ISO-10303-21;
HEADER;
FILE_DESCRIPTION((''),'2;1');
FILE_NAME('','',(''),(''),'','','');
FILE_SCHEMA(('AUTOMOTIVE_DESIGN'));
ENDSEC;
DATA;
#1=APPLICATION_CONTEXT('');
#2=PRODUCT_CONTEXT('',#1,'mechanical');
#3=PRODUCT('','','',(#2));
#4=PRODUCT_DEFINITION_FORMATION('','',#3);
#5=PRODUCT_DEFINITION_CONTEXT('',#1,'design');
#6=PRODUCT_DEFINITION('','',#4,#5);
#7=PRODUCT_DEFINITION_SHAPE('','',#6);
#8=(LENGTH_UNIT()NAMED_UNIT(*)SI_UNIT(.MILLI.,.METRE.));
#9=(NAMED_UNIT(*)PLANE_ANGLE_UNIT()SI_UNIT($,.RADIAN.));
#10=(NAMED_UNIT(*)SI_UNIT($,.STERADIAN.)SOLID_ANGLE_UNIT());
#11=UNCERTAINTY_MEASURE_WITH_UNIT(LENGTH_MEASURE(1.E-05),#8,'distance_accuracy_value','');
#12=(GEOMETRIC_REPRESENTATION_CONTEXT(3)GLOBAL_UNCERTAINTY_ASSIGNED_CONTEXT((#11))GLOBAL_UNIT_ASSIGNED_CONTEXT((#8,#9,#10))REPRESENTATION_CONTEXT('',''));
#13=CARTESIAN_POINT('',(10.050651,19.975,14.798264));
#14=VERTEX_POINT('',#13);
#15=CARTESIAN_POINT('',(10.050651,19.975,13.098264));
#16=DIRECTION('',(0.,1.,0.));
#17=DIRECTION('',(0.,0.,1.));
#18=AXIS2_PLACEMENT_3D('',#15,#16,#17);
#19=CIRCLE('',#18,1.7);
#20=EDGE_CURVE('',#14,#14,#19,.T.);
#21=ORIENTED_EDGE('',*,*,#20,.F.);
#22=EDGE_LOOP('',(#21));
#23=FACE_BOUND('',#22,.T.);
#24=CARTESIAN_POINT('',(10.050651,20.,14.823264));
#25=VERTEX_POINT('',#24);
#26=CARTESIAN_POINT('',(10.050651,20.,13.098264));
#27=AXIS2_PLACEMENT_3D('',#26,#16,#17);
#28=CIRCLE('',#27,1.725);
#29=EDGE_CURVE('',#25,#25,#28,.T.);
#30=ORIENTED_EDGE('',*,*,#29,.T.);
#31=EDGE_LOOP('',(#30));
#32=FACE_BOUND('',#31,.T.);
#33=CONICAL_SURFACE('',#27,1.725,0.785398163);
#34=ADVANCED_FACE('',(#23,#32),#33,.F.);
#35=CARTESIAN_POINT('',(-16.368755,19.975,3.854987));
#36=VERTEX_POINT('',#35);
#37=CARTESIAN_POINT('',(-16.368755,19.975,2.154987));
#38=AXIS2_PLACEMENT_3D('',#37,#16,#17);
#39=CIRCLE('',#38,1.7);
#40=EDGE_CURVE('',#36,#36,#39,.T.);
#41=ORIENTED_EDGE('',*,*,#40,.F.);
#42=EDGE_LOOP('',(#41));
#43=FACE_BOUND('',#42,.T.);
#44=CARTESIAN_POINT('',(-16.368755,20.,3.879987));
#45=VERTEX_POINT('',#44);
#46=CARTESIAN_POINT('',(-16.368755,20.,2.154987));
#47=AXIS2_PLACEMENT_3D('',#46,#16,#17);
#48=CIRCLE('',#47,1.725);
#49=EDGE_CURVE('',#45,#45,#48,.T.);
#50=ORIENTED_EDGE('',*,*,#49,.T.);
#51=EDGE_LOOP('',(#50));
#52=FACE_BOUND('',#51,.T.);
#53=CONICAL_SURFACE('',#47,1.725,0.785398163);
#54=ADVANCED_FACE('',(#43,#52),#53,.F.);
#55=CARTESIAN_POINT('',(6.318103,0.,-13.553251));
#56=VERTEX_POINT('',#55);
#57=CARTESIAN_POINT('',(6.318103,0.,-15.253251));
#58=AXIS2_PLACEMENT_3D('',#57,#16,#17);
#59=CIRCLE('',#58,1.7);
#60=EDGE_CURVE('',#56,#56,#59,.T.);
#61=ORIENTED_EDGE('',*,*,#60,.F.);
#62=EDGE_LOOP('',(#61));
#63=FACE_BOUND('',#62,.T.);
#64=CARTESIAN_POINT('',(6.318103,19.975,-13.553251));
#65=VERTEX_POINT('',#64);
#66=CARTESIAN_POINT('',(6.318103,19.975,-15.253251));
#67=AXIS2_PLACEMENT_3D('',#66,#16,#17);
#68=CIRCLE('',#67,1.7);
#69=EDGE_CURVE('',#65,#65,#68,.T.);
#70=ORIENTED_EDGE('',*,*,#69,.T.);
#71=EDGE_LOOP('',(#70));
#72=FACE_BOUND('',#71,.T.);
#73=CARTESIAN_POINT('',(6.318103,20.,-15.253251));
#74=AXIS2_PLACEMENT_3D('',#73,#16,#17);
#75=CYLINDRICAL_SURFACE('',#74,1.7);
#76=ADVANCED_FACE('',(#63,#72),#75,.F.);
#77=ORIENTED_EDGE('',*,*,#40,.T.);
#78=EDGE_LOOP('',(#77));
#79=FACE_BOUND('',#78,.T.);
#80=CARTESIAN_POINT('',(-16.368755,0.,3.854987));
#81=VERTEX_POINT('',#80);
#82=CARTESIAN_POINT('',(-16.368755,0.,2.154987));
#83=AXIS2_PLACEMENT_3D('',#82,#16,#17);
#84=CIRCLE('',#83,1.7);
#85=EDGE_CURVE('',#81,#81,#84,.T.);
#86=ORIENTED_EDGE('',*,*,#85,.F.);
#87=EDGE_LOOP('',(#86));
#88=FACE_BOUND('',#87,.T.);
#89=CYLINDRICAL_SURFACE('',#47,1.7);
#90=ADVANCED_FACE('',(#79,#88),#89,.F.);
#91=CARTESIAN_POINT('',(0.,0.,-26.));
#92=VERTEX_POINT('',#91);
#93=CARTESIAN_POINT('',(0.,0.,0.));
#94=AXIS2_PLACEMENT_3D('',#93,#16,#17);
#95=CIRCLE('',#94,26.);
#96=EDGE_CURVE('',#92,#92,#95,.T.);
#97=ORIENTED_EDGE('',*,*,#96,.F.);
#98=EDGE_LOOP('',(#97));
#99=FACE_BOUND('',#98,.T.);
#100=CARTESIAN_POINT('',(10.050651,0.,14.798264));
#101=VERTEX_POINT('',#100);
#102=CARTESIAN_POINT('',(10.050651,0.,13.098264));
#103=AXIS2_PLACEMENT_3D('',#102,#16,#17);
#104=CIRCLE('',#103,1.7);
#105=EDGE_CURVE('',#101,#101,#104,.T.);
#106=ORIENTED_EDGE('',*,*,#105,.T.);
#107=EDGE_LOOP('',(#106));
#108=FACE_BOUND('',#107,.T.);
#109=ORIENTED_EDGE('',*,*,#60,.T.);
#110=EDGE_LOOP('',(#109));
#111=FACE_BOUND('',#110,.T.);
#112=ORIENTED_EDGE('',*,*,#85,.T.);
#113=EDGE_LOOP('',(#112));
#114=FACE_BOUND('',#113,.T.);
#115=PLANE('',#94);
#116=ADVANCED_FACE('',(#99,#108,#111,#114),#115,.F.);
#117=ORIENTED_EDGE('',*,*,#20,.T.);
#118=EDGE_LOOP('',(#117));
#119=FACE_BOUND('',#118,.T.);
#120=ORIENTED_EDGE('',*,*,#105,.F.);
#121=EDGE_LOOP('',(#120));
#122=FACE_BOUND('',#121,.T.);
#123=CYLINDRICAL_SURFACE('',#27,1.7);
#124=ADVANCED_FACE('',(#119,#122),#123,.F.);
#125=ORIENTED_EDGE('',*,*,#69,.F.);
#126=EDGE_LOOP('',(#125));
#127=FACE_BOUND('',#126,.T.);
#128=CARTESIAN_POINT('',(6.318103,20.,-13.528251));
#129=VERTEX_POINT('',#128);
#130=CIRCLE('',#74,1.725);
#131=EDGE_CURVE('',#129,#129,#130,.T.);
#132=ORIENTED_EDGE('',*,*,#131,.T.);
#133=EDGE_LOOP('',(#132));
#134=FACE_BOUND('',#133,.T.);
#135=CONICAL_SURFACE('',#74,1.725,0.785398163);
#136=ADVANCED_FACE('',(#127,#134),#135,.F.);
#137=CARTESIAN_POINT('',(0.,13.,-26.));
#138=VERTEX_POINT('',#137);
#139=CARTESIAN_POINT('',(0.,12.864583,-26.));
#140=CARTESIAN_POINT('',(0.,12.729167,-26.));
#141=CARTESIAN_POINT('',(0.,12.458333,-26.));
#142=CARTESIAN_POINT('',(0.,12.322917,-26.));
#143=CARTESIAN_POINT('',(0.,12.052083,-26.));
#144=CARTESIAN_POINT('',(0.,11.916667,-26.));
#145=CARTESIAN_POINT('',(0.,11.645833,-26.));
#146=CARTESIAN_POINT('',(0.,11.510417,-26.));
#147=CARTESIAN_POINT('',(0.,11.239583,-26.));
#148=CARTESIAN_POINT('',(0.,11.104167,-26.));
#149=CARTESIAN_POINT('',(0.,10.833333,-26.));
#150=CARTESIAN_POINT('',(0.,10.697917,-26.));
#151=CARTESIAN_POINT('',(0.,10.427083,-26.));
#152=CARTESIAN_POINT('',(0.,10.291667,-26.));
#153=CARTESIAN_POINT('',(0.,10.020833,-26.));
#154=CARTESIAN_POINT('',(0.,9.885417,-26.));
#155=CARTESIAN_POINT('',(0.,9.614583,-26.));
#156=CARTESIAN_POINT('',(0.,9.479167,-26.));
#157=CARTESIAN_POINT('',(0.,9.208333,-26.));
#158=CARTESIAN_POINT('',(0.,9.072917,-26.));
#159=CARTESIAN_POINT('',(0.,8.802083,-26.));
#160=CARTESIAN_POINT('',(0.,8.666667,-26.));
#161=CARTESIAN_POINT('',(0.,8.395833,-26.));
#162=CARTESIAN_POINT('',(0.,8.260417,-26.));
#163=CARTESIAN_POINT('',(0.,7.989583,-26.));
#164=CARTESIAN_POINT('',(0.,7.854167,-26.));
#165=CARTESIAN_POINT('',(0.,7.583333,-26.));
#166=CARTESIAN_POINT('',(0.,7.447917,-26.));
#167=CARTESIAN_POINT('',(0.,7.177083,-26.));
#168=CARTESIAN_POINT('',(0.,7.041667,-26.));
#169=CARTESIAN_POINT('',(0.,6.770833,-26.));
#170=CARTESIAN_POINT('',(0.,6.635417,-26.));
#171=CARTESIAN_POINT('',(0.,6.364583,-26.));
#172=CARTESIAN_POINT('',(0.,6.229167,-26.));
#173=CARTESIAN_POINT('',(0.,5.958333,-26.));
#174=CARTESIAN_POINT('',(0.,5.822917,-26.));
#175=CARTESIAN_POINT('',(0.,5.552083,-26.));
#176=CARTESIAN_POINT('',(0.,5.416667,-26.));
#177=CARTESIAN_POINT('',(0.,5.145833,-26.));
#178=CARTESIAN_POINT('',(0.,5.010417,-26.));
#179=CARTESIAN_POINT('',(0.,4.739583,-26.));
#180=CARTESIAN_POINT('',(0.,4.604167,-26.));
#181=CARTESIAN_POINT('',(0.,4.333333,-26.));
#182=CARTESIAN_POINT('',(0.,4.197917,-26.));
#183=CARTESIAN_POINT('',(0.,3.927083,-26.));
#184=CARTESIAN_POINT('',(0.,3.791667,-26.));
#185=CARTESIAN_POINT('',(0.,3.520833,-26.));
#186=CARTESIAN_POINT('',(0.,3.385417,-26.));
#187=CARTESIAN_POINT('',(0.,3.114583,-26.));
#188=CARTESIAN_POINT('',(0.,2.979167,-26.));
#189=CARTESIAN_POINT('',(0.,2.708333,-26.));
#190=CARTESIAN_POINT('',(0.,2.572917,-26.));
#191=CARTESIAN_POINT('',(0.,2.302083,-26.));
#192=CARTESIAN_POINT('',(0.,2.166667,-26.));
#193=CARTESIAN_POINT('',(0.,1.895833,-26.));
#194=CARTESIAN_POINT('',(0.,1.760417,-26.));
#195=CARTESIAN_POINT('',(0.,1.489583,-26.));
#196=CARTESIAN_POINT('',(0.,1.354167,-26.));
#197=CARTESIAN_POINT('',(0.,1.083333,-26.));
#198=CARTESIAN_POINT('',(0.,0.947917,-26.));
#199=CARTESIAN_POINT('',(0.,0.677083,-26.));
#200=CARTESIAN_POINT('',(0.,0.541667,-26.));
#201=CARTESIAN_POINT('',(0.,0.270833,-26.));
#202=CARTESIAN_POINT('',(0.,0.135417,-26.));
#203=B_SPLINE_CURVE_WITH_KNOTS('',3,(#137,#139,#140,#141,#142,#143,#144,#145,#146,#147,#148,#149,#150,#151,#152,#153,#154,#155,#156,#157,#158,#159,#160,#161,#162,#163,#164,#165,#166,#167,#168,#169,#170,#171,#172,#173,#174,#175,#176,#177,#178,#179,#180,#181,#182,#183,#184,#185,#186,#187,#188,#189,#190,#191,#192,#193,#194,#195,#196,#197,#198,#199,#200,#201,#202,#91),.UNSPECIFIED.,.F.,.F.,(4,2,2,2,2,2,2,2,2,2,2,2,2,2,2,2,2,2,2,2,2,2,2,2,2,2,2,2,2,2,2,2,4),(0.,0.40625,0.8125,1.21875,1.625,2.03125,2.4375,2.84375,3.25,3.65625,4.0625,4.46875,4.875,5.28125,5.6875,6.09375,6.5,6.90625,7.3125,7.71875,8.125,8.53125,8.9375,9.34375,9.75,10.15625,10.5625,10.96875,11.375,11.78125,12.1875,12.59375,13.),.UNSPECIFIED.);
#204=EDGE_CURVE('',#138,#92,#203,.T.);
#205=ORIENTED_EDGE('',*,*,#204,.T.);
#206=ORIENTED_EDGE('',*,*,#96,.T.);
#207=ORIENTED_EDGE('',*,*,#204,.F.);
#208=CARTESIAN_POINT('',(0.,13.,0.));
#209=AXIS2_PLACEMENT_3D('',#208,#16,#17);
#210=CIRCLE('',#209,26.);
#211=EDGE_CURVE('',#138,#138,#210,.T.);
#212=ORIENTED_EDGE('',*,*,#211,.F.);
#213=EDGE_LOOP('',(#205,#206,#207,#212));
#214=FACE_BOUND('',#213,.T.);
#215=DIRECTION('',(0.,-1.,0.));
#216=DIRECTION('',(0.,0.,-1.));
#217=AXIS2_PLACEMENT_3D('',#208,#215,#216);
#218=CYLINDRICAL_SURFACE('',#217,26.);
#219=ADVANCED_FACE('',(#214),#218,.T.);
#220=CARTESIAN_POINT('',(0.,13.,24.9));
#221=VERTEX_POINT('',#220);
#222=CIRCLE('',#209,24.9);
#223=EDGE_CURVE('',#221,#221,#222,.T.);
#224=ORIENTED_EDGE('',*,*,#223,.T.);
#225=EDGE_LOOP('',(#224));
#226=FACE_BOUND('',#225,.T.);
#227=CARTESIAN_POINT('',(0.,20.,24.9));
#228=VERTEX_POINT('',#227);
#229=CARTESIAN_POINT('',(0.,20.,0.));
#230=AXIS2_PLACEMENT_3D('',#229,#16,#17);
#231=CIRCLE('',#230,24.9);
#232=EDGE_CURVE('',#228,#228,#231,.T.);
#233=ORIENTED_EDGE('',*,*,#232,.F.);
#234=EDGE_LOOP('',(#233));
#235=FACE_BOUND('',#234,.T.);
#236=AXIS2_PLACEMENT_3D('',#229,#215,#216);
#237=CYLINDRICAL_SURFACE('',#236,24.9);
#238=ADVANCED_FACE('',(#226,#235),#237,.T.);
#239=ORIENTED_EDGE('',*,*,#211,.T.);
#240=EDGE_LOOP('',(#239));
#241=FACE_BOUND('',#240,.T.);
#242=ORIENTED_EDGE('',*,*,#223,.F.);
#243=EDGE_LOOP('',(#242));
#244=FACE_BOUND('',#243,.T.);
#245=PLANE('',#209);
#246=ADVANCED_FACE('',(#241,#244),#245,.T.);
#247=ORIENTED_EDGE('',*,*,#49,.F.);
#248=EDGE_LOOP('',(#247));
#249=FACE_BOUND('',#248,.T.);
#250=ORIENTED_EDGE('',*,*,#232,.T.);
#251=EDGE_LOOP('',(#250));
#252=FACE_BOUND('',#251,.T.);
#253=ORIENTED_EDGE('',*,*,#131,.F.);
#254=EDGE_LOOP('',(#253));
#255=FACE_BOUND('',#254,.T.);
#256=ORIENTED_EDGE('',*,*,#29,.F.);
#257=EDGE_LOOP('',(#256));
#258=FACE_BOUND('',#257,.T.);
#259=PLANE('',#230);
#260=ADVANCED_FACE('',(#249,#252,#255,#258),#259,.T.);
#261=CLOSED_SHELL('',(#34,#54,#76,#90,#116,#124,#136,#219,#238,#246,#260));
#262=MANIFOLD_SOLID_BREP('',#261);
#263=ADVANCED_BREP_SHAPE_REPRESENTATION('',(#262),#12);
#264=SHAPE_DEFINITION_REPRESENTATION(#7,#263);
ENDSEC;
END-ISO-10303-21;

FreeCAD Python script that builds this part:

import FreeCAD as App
import Part
import Sketcher
from FreeCAD import Vector
Q = App.Units.Quantity

doc = App.newDocument("Part")
params = doc.addObject("Spreadsheet::Sheet", "Params")
for row, (alias, value) in enumerate([
    ("sketch1_diameter", "52 mm"),
    ("pad1_length", "13 mm"),
    ("sketch2_diameter", "49.8 mm"),
    ("pad2_length", "7 mm"),
    ("sketch3_diameter", "3.4 mm"),
    ("hole_diameter", "3.4 mm"),
    ("hole_csink_diameter", "3.45 mm"),
], start=1):
    params.set(f"A{row}", alias)
    params.set(f"B{row}", "=" + value)
    params.setAlias(f"B{row}", alias)

body = doc.addObject("PartDesign::Body", "Body")

sketch1 = body.newObject("Sketcher::SketchObject", "Sketch")
sketch1.AttachmentSupport = (doc.getObject("XZ_Plane"), [""])
sketch1.MapMode = "FlatFace"
sketch1.addGeometry(Part.Circle(Vector(0, 0, 0), Vector(0, 0, 1), 26), False)
sketch1.addConstraint([
    Sketcher.Constraint("Coincident", 0, 3, -1, 1),
    Sketcher.Constraint("Diameter", 0, Q("52 mm")),
])
sketch1.setExpression("Constraints[1]", "Params.sketch1_diameter")
pad1 = body.newObject("PartDesign::Pad", "Pad")
pad1.Profile = sketch1
pad1.setExpression("Length", "Params.pad1_length")
pad1.Reversed = True

sketch2 = body.newObject("Sketcher::SketchObject", "Sketch001")
sketch2.AttachmentSupport = (doc.getObject("XZ_Plane"), [""])
sketch2.MapMode = "FlatFace"
sketch2.AttachmentOffset = App.Placement(Vector(0, 0, -13), App.Rotation())
sketch2.addGeometry(Part.Circle(Vector(0, 0, 0), Vector(0, 0, 1), 25), False)
sketch2.addConstraint([
    Sketcher.Constraint("Coincident", 0, 3, -1, 1),
    Sketcher.Constraint("Diameter", 0, Q("49.8 mm")),
])
sketch2.setExpression("Constraints[1]", "Params.sketch2_diameter")
pad2 = body.newObject("PartDesign::Pad", "Pad001")
pad2.Profile = sketch2
pad2.setExpression("Length", "Params.pad2_length")
pad2.Reversed = True

sketch3 = body.newObject("Sketcher::SketchObject", "Sketch002")
sketch3.AttachmentSupport = (doc.getObject("XZ_Plane"), [""])
sketch3.MapMode = "FlatFace"
sketch3.AttachmentOffset = App.Placement(Vector(0, 0, -20), App.Rotation())
sketch3.addGeometry([
    Part.Circle(Vector(6.3, -15.3, 0), Vector(0, 0, 1), 1.7),
    Part.Circle(Vector(10.1, 13.1, 0), Vector(0, 0, 1), 1.7),
    Part.Circle(Vector(-16.4, 2.2, 0), Vector(0, 0, 1), 1.7),
], False)
sketch3.addConstraint([
    Sketcher.Constraint("Equal", 0, 1),
    Sketcher.Constraint("Equal", 1, 2),
    Sketcher.Constraint("Diameter", 0, Q("3.4 mm")),
    Sketcher.Constraint("DistanceY", 0, 3, -1, 1, Q("15.253251 mm")),
    Sketcher.Constraint("DistanceX", -1, 1, 1, 3, Q("10.050651 mm")),
    Sketcher.Constraint("DistanceX", 2, 3, 0, 3, Q("22.686858 mm")),
    Sketcher.Constraint("DistanceY", 0, 3, 2, 3, Q("17.408239 mm")),
    Sketcher.Constraint("DistanceX", -1, 1, 0, 3, Q("6.318103 mm")),
    Sketcher.Constraint("DistanceY", -1, 1, 1, 3, Q("13.098264 mm")),
])
sketch3.setExpression("Constraints[2]", "Params.sketch3_diameter")
doc.recompute()
hole = body.newObject("PartDesign::Hole", "Hole")
hole.Profile = sketch3
hole.ThreadType = "None"
hole.setExpression("Diameter", "Params.hole_diameter")
hole.DepthType = "ThroughAll"
hole.HoleCutType = "Countersink"
hole.setExpression("HoleCutDiameter", "Params.hole_csink_diameter")
hole.HoleCutCountersinkAngle = 90
hole.Reversed = True

doc.recompute()
